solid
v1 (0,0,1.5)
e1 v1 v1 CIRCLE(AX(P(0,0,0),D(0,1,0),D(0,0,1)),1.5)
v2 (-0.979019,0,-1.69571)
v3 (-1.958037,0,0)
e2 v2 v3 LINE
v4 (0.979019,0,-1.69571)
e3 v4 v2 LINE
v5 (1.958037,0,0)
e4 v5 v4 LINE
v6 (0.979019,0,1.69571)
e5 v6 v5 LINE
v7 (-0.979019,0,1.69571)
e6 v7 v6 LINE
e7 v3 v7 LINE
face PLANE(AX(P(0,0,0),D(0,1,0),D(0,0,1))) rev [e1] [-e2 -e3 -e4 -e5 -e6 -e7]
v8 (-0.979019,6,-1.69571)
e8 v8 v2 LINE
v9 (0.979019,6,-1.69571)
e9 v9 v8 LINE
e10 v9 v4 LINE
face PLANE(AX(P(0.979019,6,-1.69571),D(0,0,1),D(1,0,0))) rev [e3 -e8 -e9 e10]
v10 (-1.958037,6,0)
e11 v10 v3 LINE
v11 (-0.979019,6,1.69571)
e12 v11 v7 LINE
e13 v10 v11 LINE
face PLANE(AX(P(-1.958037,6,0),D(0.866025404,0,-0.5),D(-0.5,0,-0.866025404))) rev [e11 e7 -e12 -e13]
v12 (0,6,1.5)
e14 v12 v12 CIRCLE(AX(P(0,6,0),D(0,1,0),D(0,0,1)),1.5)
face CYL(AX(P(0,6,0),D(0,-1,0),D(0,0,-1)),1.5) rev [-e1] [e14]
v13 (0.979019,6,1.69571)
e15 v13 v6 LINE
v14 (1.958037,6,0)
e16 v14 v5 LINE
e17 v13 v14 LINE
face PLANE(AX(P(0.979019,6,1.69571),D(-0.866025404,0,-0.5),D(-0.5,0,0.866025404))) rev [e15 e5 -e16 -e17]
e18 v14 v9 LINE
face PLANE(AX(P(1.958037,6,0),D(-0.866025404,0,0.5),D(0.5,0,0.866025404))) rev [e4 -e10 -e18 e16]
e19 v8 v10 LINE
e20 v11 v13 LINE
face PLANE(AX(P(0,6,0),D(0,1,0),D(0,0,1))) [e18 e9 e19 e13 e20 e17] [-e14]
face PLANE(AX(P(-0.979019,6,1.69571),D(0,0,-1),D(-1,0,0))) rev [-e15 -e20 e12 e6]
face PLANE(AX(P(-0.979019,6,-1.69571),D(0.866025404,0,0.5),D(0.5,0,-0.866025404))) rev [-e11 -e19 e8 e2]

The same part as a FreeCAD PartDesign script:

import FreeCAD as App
import Part
import Sketcher
Q = App.Units.Quantity

doc = App.newDocument("Part")
params = doc.addObject("Spreadsheet::Sheet", "Params")
for row, (alias, value) in enumerate([
    ("sketch1_diameter", "3 mm"),
    ("pad1_length", "6 mm"),
], start=1):
    params.set(f"A{row}", alias)
    params.set(f"B{row}", "=" + value)
    params.setAlias(f"B{row}", alias)

body = doc.addObject("PartDesign::Body", "Body")

# Sketch on XZ plane
sketch1 = body.newObject("Sketcher::SketchObject", "Sketch")
sketch1.AttachmentSupport = (doc.getObject("XZ_Plane"), [""])
sketch1.MapMode = "FlatFace"
sketch1.addGeometry(Part.LineSegment(App.Vector(1, 1.7, 0), App.Vector(2, 0, 0)), False)
sketch1.addGeometry(Part.LineSegment(App.Vector(2, 0, 0), App.Vector(1, -1.7, 0)), False)
sketch1.addGeometry(Part.LineSegment(App.Vector(1, -1.7, 0), App.Vector(-1, -1.7, 0)), False)
sketch1.addGeometry(Part.LineSegment(App.Vector(-1, -1.7, 0), App.Vector(-2, 0, 0)), False)
sketch1.addGeometry(Part.LineSegment(App.Vector(-2, 0, 0), App.Vector(-1, 1.7, 0)), False)
sketch1.addGeometry(Part.LineSegment(App.Vector(-1, 1.7, 0), App.Vector(1, 1.7, 0)), False)
sketch1.addGeometry(Part.Circle(App.Vector(0, 0, 0), App.Vector(0, 0, 1), 1.5), False)
sketch1.addConstraint(Sketcher.Constraint("Coincident", 0, 2, 1, 1))
sketch1.addConstraint(Sketcher.Constraint("Coincident", 1, 2, 2, 1))
sketch1.addConstraint(Sketcher.Constraint("Coincident", 2, 2, 3, 1))
sketch1.addConstraint(Sketcher.Constraint("Coincident", 3, 2, 4, 1))
sketch1.addConstraint(Sketcher.Constraint("Coincident", 4, 2, 5, 1))
sketch1.addConstraint(Sketcher.Constraint("Coincident", 5, 2, 0, 1))
sketch1.addConstraint(Sketcher.Constraint("Horizontal", 2))
sketch1.addConstraint(Sketcher.Constraint("Horizontal", 5))
sketch1.addConstraint(Sketcher.Constraint("Coincident", 6, 3, -1, 1))
sketch1.addConstraint(Sketcher.Constraint("Symmetric", 0, 2, 3, 2, -1, 1))
sketch1.addConstraint(Sketcher.Constraint("Symmetric", 1, 2, 4, 2, -1, 1))
sketch1.addConstraint(Sketcher.Constraint("PointOnObject", 0, 2, -1))
sketch1.addConstraint(Sketcher.Constraint("Parallel", 0, 3))
sketch1.addConstraint(Sketcher.Constraint("Vertical", 2, 2, 4, 2))
sketch1.addConstraint(Sketcher.Constraint("Diameter", 6, Q("3 mm")))
sketch1.addConstraint(Sketcher.Constraint("Angle", 0, Q("-60 deg")))
sketch1.addConstraint(Sketcher.Constraint("DistanceX", 2, 2, 2, 1, Q("1.958037 mm")))
sketch1.addConstraint(Sketcher.Constraint("DistanceY", 1, 2, -1, 1, Q("1.69571 mm")))
sketch1.setExpression("Constraints[14]", "Params.sketch1_diameter")
pad1 = body.newObject("PartDesign::Pad", "Pad")
pad1.Profile = sketch1
pad1.setExpression("Length", "Params.pad1_length")
pad1.Reversed = True

doc.recompute()
